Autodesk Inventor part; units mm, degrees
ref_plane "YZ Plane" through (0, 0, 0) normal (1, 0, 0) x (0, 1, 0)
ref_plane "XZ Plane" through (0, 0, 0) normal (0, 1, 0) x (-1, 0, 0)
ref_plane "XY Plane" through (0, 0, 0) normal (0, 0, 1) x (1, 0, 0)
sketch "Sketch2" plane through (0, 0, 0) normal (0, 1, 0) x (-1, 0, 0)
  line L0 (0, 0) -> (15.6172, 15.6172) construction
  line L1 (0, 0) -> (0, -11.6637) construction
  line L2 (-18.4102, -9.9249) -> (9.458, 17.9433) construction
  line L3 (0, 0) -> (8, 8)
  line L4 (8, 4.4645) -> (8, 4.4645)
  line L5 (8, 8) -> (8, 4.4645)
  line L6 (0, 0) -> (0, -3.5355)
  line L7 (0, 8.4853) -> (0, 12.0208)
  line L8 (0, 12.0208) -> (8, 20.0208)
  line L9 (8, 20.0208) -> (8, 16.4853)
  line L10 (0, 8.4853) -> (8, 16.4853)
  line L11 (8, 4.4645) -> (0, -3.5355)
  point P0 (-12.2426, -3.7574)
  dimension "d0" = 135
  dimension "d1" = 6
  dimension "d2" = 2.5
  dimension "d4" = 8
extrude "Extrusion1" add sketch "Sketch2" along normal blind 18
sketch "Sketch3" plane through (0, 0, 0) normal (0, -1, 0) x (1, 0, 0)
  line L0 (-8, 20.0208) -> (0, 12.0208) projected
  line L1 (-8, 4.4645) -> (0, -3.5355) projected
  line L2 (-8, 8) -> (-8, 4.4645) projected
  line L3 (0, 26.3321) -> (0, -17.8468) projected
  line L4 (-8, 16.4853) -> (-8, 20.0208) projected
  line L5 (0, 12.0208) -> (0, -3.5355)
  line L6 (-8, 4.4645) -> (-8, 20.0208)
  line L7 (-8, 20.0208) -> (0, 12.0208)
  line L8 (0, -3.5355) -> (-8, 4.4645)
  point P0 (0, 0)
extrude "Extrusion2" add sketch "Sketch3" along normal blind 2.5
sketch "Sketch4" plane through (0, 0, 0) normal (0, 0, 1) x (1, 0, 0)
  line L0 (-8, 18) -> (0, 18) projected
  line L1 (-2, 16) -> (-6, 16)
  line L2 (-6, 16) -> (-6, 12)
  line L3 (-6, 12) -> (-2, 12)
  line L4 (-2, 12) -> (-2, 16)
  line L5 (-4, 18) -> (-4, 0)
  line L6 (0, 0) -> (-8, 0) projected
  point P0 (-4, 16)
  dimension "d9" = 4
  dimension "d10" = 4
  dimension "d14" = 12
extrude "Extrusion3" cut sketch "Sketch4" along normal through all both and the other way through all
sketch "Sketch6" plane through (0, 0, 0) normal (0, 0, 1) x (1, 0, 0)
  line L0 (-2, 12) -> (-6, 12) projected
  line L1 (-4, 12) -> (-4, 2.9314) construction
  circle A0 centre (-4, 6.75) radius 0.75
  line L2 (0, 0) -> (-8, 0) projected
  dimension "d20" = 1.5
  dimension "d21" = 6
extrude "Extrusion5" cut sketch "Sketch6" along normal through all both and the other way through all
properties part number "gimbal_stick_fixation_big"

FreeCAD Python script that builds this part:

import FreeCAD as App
import Part
import Sketcher
from FreeCAD import Vector
Q = App.Units.Quantity


def add_polygon(sketch, points):
    """Adds a closed chain of lines whose ends are joined by coincident constraints."""
    first, n = sketch.GeometryCount, len(points)
    for a, b in zip(points, points[1:] + points[:1]):
        sketch.addGeometry(Part.LineSegment(App.Vector(*a, 0), App.Vector(*b, 0)), False)
    for i in range(n):
        sketch.addConstraint(Sketcher.Constraint("Coincident", first + i, 2, first + (i + 1) % n, 1))

doc = App.newDocument("Part")
params = doc.addObject("Spreadsheet::Sheet", "Params")
for row, (alias, value) in enumerate([
    ("pad1_length", "18 mm"),
    ("pad2_length", "2.5 mm"),
    ("sketch3_width", "4 mm"),
    ("sketch4_diameter", "1.5 mm"),
], start=1):
    params.set(f"A{row}", alias)
    params.set(f"B{row}", "=" + value)
    params.setAlias(f"B{row}", alias)

body = doc.addObject("PartDesign::Body", "Body")
body.AllowCompound = True

# Sketch on XZ plane
sketch1 = body.newObject("Sketcher::SketchObject", "Sketch")
sketch1.AttachmentSupport = (doc.getObject("XZ_Plane"), [""])
sketch1.MapMode = "FlatFace"
add_polygon(sketch1, [(-8, 8), (0, 0), (0, -3.5), (-8, 4.5)])  # lines 0-3
add_polygon(sketch1, [(0, 12), (0, 8.5), (-8, 16.5), (-8, 20)])  # lines 4-7
sketch1.addConstraint([
    Sketcher.Constraint("Vertical", 1),
    Sketcher.Constraint("Vertical", 3),
    Sketcher.Constraint("Vertical", 4),
    Sketcher.Constraint("Vertical", 6),
    Sketcher.Constraint("Coincident", 0, 2, -1, 1),
    Sketcher.Constraint("PointOnObject", 4, 2, -2),
    Sketcher.Constraint("Parallel", 0, 2),
    Sketcher.Constraint("Parallel", 2, 5),
    Sketcher.Constraint("Parallel", 5, 7),
    Sketcher.Constraint("Vertical", 3, 2, 5, 2),
    Sketcher.Constraint("Equal", 3, 4),
    Sketcher.Constraint("Angle", 2, Q("135 deg")),
    Sketcher.Constraint("DistanceX", 2, 2, -1, 1, 8.0),
    Sketcher.Constraint("DistanceY", 1, 2, 1, 1, 3.5355),
    Sketcher.Constraint("DistanceY", -1, 1, 4, 2, 8.4853),
])
pad1 = body.newObject("PartDesign::Pad", "Pad")
pad1.Profile = sketch1
pad1.setExpression("Length", "Params.pad1_length")
pad1.Reversed = True

# Sketch on XZ plane
sketch2 = body.newObject("Sketcher::SketchObject", "Sketch001")
sketch2.AttachmentSupport = (doc.getObject("XZ_Plane"), [""])
sketch2.MapMode = "FlatFace"
add_polygon(sketch2, [(0, 12), (-8, 20), (-8, 4), (0, -4)])  # lines 0-3
sketch2.addConstraint([
    Sketcher.Constraint("Vertical", 1),
    Sketcher.Constraint("Vertical", 3),
    Sketcher.Constraint("PointOnObject", 2, 2, -2),
    Sketcher.Constraint("Parallel", 0, 2),
    Sketcher.Constraint("Angle", 0, Q("135 deg")),
    Sketcher.Constraint("DistanceX", 0, 2, -1, 1, 8.0),
    Sketcher.Constraint("DistanceY", 1, 2, 1, 1, 15.5563),
    Sketcher.Constraint("DistanceY", -1, 1, 0, 2, 20.0208),
])
pad2 = body.newObject("PartDesign::Pad", "Pad001")
pad2.Profile = sketch2
pad2.setExpression("Length", "Params.pad2_length")

# Sketch on XY plane
sketch3 = body.newObject("Sketcher::SketchObject", "Sketch002")
sketch3.AttachmentSupport = (doc.getObject("XY_Plane"), [""])
sketch3.MapMode = "FlatFace"
add_polygon(sketch3, [(-2, 12), (-2, 16), (-6, 16), (-6, 12)])  # lines 0-3
sketch3.addConstraint([
    Sketcher.Constraint("Vertical", 0),
    Sketcher.Constraint("Horizontal", 1),
    Sketcher.Constraint("Vertical", 2),
    Sketcher.Constraint("Horizontal", 3),
    Sketcher.Constraint("Equal", 3, 0),
    Sketcher.Constraint("DistanceX", 1, 2, 1, 1, 4.0),
    Sketcher.Constraint("DistanceY", -1, 1, 2, 2, 12.0),
    Sketcher.Constraint("DistanceX", 0, 2, -1, 1, 2.0),
])
sketch3.setExpression("Constraints[9]", "Params.sketch3_width")
pocket1 = body.newObject("PartDesign::Pocket", "Pocket")
pocket1.Profile = sketch3
pocket1.Type = "ThroughAll"
pocket1.Midplane = True

# Sketch on XY plane
sketch4 = body.newObject("Sketcher::SketchObject", "Sketch003")
sketch4.AttachmentSupport = (doc.getObject("XY_Plane"), [""])
sketch4.MapMode = "FlatFace"
sketch4.addGeometry(Part.Circle(Vector(-4, 6.8, 0), Vector(0, 0, 1), 0.8), False)
sketch4.addConstraint([
    Sketcher.Constraint("Diameter", 0, 1.5),
    Sketcher.Constraint("DistanceX", 0, 3, -1, 1, 4.0),
    Sketcher.Constraint("DistanceY", -1, 1, 0, 3, 6.75),
])
sketch4.setExpression("Constraints[0]", "Params.sketch4_diameter")
pocket2 = body.newObject("PartDesign::Pocket", "Pocket001")
pocket2.Profile = sketch4
pocket2.Type = "ThroughAll"
pocket2.Midplane = True

doc.recompute()
